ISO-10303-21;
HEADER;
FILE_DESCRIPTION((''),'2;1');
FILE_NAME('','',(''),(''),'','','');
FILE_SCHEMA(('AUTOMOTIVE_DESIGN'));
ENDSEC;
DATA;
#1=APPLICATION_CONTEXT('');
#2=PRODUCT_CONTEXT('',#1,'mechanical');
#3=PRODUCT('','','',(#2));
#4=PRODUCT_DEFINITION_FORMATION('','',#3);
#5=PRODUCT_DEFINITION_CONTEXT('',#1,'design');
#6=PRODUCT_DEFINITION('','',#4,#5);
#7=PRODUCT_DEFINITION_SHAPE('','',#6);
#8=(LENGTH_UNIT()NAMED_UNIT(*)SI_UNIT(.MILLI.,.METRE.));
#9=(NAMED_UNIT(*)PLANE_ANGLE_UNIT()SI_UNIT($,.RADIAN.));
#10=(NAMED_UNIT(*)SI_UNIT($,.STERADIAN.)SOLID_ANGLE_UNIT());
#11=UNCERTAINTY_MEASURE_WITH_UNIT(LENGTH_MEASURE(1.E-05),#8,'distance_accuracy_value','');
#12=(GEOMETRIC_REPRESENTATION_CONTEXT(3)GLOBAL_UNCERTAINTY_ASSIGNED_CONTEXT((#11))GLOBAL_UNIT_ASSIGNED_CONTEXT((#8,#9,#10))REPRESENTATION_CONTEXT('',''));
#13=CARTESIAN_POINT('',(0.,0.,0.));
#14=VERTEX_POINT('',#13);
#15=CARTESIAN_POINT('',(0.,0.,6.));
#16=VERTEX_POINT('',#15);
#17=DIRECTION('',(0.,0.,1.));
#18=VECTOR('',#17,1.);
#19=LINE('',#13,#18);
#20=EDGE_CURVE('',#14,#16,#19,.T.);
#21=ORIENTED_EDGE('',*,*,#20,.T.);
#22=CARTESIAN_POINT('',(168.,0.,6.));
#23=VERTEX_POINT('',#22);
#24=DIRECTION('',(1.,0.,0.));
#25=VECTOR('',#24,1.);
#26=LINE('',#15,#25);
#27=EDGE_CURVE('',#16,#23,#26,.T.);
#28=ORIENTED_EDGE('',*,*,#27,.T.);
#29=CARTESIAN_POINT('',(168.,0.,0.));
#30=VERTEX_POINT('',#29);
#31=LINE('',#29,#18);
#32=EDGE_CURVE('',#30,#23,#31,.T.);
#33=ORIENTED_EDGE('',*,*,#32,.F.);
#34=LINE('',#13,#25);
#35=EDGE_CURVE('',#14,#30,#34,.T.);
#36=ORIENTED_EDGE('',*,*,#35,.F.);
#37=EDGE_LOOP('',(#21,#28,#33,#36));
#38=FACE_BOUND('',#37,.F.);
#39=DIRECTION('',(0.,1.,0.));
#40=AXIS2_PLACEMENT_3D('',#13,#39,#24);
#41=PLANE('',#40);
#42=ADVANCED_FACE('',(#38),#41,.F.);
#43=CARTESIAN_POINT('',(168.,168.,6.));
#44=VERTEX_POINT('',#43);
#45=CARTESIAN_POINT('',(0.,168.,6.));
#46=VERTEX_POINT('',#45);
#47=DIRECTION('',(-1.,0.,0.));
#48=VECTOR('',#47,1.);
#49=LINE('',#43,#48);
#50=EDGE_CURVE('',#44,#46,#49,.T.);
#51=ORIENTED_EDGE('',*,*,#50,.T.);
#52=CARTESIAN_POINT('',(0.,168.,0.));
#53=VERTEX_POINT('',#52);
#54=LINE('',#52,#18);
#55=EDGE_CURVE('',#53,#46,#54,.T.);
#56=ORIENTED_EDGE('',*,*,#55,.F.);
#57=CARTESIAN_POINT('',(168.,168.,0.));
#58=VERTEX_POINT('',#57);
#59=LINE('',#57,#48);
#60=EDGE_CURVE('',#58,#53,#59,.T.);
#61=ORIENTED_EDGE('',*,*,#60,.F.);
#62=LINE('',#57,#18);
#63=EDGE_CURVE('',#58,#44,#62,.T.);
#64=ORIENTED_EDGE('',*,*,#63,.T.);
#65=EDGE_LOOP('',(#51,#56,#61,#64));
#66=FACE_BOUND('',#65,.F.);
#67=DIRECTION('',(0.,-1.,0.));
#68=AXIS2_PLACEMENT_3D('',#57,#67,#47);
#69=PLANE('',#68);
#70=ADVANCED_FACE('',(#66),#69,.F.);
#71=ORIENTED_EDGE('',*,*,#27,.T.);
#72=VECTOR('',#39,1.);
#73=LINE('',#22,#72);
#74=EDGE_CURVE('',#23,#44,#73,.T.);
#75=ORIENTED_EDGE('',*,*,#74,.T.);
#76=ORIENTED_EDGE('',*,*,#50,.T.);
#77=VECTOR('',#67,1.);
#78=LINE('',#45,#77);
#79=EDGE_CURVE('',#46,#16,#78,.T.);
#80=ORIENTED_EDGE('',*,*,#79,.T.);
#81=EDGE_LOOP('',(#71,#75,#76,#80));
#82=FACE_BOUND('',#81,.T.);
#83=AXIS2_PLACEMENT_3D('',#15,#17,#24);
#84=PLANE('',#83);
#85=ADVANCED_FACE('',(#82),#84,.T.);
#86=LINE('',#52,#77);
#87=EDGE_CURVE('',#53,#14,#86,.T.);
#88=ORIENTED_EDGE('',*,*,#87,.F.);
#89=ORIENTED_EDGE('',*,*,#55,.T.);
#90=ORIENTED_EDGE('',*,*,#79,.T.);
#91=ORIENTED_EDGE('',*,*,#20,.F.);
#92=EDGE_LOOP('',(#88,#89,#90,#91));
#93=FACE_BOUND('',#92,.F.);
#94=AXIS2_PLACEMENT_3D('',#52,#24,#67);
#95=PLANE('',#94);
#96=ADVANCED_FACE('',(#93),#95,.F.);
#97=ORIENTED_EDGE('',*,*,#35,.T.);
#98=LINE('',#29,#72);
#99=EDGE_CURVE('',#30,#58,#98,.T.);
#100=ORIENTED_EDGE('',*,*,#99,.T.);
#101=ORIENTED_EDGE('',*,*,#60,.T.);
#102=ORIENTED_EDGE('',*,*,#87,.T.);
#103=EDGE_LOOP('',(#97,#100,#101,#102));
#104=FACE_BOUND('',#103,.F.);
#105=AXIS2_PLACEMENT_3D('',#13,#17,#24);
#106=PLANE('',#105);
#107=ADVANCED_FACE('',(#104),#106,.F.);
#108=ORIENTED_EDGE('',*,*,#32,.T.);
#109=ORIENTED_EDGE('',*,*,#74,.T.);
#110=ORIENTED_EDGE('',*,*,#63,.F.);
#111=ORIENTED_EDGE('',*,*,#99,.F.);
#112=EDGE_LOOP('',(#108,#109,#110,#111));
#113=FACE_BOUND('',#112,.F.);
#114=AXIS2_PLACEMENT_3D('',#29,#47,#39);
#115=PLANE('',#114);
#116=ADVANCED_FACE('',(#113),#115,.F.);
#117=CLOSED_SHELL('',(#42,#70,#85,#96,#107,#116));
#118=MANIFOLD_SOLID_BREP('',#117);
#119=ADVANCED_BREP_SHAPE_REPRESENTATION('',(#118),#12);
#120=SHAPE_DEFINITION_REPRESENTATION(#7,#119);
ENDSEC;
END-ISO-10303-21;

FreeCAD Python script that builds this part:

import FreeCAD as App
import Part
import Sketcher

V = App.Vector

doc = App.newDocument("Part")
body = doc.addObject("PartDesign::Body", "Body")

# Sketch on XY plane
sketch1 = body.newObject("Sketcher::SketchObject", "Sketch")
sketch1.AttachmentSupport = (doc.getObject("XY_Plane"), [""])
sketch1.MapMode = "FlatFace"
sketch1.addGeometry([
    Part.LineSegment(V(0, 168, 0), V(0, 0, 0)),
    Part.LineSegment(V(0, 0, 0), V(168, 0, 0)),
    Part.LineSegment(V(168, 0, 0), V(168, 168, 0)),
    Part.LineSegment(V(168, 168, 0), V(0, 168, 0)),
], False)
sketch1.addConstraint([
    Sketcher.Constraint("Coincident", 0, 2, 1, 1),
    Sketcher.Constraint("Coincident", 1, 2, 2, 1),
    Sketcher.Constraint("Coincident", 2, 2, 3, 1),
    Sketcher.Constraint("Coincident", 3, 2, 0, 1),
    Sketcher.Constraint("Vertical", 0),
    Sketcher.Constraint("Horizontal", 1),
    Sketcher.Constraint("Vertical", 2),
    Sketcher.Constraint("Horizontal", 3),
    Sketcher.Constraint("Coincident", 0, 2, -1, 1),
    Sketcher.Constraint("Equal", 3, 0),
    Sketcher.Constraint("DistanceX", 1, 1, 1, 2, 168.0),
])
pad1 = body.newObject("PartDesign::Pad", "Pad")
pad1.Profile = sketch1
pad1.Length = 6

doc.recompute()
